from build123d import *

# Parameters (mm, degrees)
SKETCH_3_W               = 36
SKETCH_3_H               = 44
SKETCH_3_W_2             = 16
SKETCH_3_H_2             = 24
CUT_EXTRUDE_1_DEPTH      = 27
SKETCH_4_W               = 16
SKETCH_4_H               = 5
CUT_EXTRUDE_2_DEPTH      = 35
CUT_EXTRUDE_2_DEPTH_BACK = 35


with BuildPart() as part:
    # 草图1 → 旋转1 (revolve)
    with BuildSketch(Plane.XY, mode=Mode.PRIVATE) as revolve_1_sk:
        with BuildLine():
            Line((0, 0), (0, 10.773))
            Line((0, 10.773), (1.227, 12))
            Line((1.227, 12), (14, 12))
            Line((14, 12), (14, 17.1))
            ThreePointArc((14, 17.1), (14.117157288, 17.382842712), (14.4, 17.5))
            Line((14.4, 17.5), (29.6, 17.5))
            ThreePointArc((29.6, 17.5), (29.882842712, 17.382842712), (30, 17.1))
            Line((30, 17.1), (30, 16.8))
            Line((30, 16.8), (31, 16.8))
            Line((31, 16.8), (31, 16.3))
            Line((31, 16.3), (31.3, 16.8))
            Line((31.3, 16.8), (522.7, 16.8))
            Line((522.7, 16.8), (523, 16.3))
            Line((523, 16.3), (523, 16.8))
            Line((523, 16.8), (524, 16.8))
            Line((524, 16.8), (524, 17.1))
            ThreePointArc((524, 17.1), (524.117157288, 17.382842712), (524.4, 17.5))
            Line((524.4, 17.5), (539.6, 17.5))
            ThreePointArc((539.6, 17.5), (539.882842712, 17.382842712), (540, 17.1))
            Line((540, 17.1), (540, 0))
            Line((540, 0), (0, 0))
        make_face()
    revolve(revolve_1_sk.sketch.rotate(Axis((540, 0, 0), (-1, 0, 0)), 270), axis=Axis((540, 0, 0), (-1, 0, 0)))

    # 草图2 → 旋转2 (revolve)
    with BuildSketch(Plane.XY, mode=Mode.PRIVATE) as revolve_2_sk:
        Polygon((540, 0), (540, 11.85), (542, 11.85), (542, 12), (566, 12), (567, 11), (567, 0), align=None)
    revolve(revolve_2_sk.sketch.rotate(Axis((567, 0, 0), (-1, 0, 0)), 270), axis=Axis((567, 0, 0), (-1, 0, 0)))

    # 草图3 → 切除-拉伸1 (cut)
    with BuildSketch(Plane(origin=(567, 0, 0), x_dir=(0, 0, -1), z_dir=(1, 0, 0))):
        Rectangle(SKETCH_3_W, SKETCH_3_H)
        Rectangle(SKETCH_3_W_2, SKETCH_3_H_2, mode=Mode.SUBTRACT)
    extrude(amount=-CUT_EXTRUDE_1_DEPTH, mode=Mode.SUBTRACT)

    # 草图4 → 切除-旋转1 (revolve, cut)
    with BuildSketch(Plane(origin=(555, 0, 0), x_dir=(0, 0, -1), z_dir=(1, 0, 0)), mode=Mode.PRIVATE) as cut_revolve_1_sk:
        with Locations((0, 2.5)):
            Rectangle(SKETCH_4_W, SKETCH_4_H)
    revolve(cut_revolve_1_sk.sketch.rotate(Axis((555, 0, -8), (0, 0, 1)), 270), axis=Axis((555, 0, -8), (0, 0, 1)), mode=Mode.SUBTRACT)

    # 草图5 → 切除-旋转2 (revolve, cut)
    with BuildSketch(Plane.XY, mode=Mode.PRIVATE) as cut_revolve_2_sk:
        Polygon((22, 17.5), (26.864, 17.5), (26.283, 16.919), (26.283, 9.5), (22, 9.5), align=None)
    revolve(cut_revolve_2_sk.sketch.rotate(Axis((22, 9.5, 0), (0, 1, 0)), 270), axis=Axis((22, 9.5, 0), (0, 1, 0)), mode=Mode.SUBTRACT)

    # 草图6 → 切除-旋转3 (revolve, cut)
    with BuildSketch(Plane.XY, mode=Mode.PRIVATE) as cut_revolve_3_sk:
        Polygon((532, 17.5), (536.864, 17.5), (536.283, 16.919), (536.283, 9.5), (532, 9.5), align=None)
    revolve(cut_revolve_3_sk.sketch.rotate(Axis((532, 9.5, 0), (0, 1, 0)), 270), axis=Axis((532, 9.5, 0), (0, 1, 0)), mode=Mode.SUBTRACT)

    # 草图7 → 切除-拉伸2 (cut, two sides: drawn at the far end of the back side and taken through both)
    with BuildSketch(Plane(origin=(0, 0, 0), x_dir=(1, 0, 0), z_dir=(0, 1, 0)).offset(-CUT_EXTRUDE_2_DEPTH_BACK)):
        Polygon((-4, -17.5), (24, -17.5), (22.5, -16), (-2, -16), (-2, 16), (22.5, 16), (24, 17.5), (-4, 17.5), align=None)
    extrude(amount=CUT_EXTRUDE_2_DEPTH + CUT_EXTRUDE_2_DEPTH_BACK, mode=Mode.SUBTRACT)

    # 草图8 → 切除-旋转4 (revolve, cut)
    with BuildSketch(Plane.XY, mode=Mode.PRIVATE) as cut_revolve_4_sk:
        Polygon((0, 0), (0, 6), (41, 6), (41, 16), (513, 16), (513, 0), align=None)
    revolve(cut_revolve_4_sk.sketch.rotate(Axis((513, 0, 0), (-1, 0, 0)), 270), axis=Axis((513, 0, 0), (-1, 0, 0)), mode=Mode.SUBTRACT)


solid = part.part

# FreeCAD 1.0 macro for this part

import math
import FreeCAD as App
import Part
import Sketcher
from FreeCAD import Vector
Q = App.Units.Quantity

doc = App.newDocument("Part")
body = doc.addObject("PartDesign::Body", "Body")

# Sketch on XY plane
sketch1 = body.newObject("Sketcher::SketchObject", "Sketch")
sketch1.AttachmentSupport = (doc.getObject("XY_Plane"), [""])
sketch1.MapMode = "FlatFace"
sketch1.addGeometry(Part.LineSegment(Vector(0, 10.77, 0), Vector(0, 0, 0)), False)
sketch1.addGeometry(Part.LineSegment(Vector(0, 0, 0), Vector(540, 0, 0)), False)
sketch1.addGeometry(Part.LineSegment(Vector(540, 0, 0), Vector(540, 17.1, 0)), False)
sketch1.addGeometry(Part.ArcOfCircle(Part.Circle(Vector(539.6, 17.1, 0), Vector(0, 0, 1), 0.4), math.radians(0), math.radians(90)), False)
sketch1.addGeometry(Part.LineSegment(Vector(539.6, 17.5, 0), Vector(524.4, 17.5, 0)), False)
sketch1.addGeometry(Part.ArcOfCircle(Part.Circle(Vector(524.4, 17.1, 0), Vector(0, 0, 1), 0.4), math.radians(90), math.radians(180)), False)
sketch1.addGeometry(Part.LineSegment(Vector(524, 17.1, 0), Vector(524, 16.8, 0)), False)
sketch1.addGeometry(Part.LineSegment(Vector(524, 16.8, 0), Vector(523, 16.8, 0)), False)
sketch1.addGeometry(Part.LineSegment(Vector(523, 16.8, 0), Vector(523, 16.3, 0)), False)
sketch1.addGeometry(Part.LineSegment(Vector(523, 16.3, 0), Vector(522.7, 16.8, 0)), False)
sketch1.addGeometry(Part.LineSegment(Vector(522.7, 16.8, 0), Vector(31.3, 16.8, 0)), False)
sketch1.addGeometry(Part.LineSegment(Vector(31.3, 16.8, 0), Vector(31, 16.3, 0)), False)
sketch1.addGeometry(Part.LineSegment(Vector(31, 16.3, 0), Vector(31, 16.8, 0)), False)
sketch1.addGeometry(Part.LineSegment(Vector(31, 16.8, 0), Vector(30, 16.8, 0)), False)
sketch1.addGeometry(Part.LineSegment(Vector(30, 16.8, 0), Vector(30, 17.1, 0)), False)
sketch1.addGeometry(Part.ArcOfCircle(Part.Circle(Vector(29.6, 17.1, 0), Vector(0, 0, 1), 0.4), math.radians(0), math.radians(90)), False)
sketch1.addGeometry(Part.LineSegment(Vector(29.6, 17.5, 0), Vector(14.4, 17.5, 0)), False)
sketch1.addGeometry(Part.ArcOfCircle(Part.Circle(Vector(14.4, 17.1, 0), Vector(0, 0, 1), 0.4), math.radians(90), math.radians(180)), False)
sketch1.addGeometry(Part.LineSegment(Vector(14, 17.1, 0), Vector(14, 12, 0)), False)
sketch1.addGeometry(Part.LineSegment(Vector(14, 12, 0), Vector(1.23, 12, 0)), False)
sketch1.addGeometry(Part.LineSegment(Vector(1.23, 12, 0), Vector(0, 10.77, 0)), False)
sketch1.addConstraint(Sketcher.Constraint("Coincident", 0, 2, 1, 1))
sketch1.addConstraint(Sketcher.Constraint("Coincident", 1, 2, 2, 1))
sketch1.addConstraint(Sketcher.Constraint("Tangent", 2, 2, 3, 1))
sketch1.addConstraint(Sketcher.Constraint("Tangent", 3, 2, 4, 1))
sketch1.addConstraint(Sketcher.Constraint("Tangent", 4, 2, 5, 1))
sketch1.addConstraint(Sketcher.Constraint("Tangent", 5, 2, 6, 1))
sketch1.addConstraint(Sketcher.Constraint("Coincident", 6, 2, 7, 1))
sketch1.addConstraint(Sketcher.Constraint("Coincident", 7, 2, 8, 1))
sketch1.addConstraint(Sketcher.Constraint("Coincident", 8, 2, 9, 1))
sketch1.addConstraint(Sketcher.Constraint("Coincident", 9, 2, 10, 1))
sketch1.addConstraint(Sketcher.Constraint("Coincident", 10, 2, 11, 1))
sketch1.addConstraint(Sketcher.Constraint("Coincident", 11, 2, 12, 1))
sketch1.addConstraint(Sketcher.Constraint("Coincident", 12, 2, 13, 1))
sketch1.addConstraint(Sketcher.Constraint("Coincident", 13, 2, 14, 1))
sketch1.addConstraint(Sketcher.Constraint("Tangent", 14, 2, 15, 1))
sketch1.addConstraint(Sketcher.Constraint("Tangent", 15, 2, 16, 1))
sketch1.addConstraint(Sketcher.Constraint("Tangent", 16, 2, 17, 1))
sketch1.addConstraint(Sketcher.Constraint("Tangent", 17, 2, 18, 1))
sketch1.addConstraint(Sketcher.Constraint("Coincident", 18, 2, 19, 1))
sketch1.addConstraint(Sketcher.Constraint("Coincident", 19, 2, 20, 1))
sketch1.addConstraint(Sketcher.Constraint("Coincident", 20, 2, 0, 1))
sketch1.addConstraint(Sketcher.Constraint("Vertical", 0))
sketch1.addConstraint(Sketcher.Constraint("Horizontal", 1))
sketch1.addConstraint(Sketcher.Constraint("Vertical", 2))
sketch1.addConstraint(Sketcher.Constraint("Horizontal", 4))
sketch1.addConstraint(Sketcher.Constraint("Vertical", 6))
sketch1.addConstraint(Sketcher.Constraint("Horizontal", 7))
sketch1.addConstraint(Sketcher.Constraint("Vertical", 8))
sketch1.addConstraint(Sketcher.Constraint("Horizontal", 10))
sketch1.addConstraint(Sketcher.Constraint("Vertical", 12))
sketch1.addConstraint(Sketcher.Constraint("Horizontal", 13))
sketch1.addConstraint(Sketcher.Constraint("Vertical", 14))
sketch1.addConstraint(Sketcher.Constraint("Horizontal", 16))
sketch1.addConstraint(Sketcher.Constraint("Vertical", 18))
sketch1.addConstraint(Sketcher.Constraint("Horizontal", 19))
sketch1.addConstraint(Sketcher.Constraint("Coincident", 0, 2, -1, 1))
sketch1.addConstraint(Sketcher.Constraint("Equal", 3, 5))
sketch1.addConstraint(Sketcher.Constraint("Equal", 5, 15))
sketch1.addConstraint(Sketcher.Constraint("Equal", 15, 17))
sketch1.addConstraint(Sketcher.Constraint("Horizontal", 5, 3, 15, 3))
sketch1.addConstraint(Sketcher.Constraint("Horizontal", 7, 2, 9, 2))
sketch1.addConstraint(Sketcher.Constraint("Horizontal", 8, 2, 11, 2))
sketch1.addConstraint(Sketcher.Constraint("Horizontal", 10, 2, 12, 2))
sketch1.addConstraint(Sketcher.Constraint("Equal", 7, 13))
sketch1.addConstraint(Sketcher.Constraint("Equal", 4, 16))
sketch1.addConstraint(Sketcher.Constraint("Equal", 9, 11))
sketch1.addConstraint(Sketcher.Constraint("Radius", 3, Q("0.4 mm")))
sketch1.addConstraint(Sketcher.Constraint("DistanceX", 1, 1, 1, 2, Q("540 mm")))
sketch1.addConstraint(Sketcher.Constraint("DistanceX", 7, 2, 7, 1, Q("1 mm")))
sketch1.addConstraint(Sketcher.Constraint("Angle", 20, Q("-135 deg")))
sketch1.addConstraint(Sketcher.Constraint("DistanceX", 4, 2, 4, 1, Q("15.2 mm")))
sketch1.addConstraint(Sketcher.Constraint("DistanceX", 10, 2, 10, 1, Q("491.4 mm")))
sketch1.addConstraint(Sketcher.Constraint("DistanceY", 2, 1, 2, 2, Q("17.1 mm")))
sketch1.addConstraint(Sketcher.Constraint("DistanceY", 6, 2, 6, 1, Q("0.3 mm")))
sketch1.addConstraint(Sketcher.Constraint("DistanceY", 8, 2, 8, 1, Q("0.5 mm")))
sketch1.addConstraint(Sketcher.Constraint("DistanceY", 18, 2, 18, 1, Q("5.1 mm")))
sketch1.addConstraint(Sketcher.Constraint("DistanceX", -1, 1, 11, 2, Q("31 mm")))
sketch1.addConstraint(Sketcher.Constraint("DistanceX", 19, 2, 19, 1, Q("12.773 mm")))
revolution = body.newObject("PartDesign::Revolution", "Revolution")
revolution.Profile = sketch1
revolution.ReferenceAxis = (sketch1, ["H_Axis"])
revolution.Angle = 360

# Sketch on XY plane
sketch2 = body.newObject("Sketcher::SketchObject", "Sketch001")
sketch2.AttachmentSupport = (doc.getObject("XY_Plane"), [""])
sketch2.MapMode = "FlatFace"
sketch2.addGeometry(Part.LineSegment(Vector(540, 11.85, 0), Vector(540, 0, 0)), False)
sketch2.addGeometry(Part.LineSegment(Vector(540, 0, 0), Vector(567, 0, 0)), False)
sketch2.addGeometry(Part.LineSegment(Vector(567, 0, 0), Vector(567, 11, 0)), False)
sketch2.addGeometry(Part.LineSegment(Vector(567, 11, 0), Vector(566, 12, 0)), False)
sketch2.addGeometry(Part.LineSegment(Vector(566, 12, 0), Vector(542, 12, 0)), False)
sketch2.addGeometry(Part.LineSegment(Vector(542, 12, 0), Vector(542, 11.85, 0)), False)
sketch2.addGeometry(Part.LineSegment(Vector(542, 11.85, 0), Vector(540, 11.85, 0)), False)
sketch2.addConstraint(Sketcher.Constraint("Coincident", 0, 2, 1, 1))
sketch2.addConstraint(Sketcher.Constraint("Coincident", 1, 2, 2, 1))
sketch2.addConstraint(Sketcher.Constraint("Coincident", 2, 2, 3, 1))
sketch2.addConstraint(Sketcher.Constraint("Coincident", 3, 2, 4, 1))
sketch2.addConstraint(Sketcher.Constraint("Coincident", 4, 2, 5, 1))
sketch2.addConstraint(Sketcher.Constraint("Coincident", 5, 2, 6, 1))
sketch2.addConstraint(Sketcher.Constraint("Coincident", 6, 2, 0, 1))
sketch2.addConstraint(Sketcher.Constraint("Vertical", 0))
sketch2.addConstraint(Sketcher.Constraint("Horizontal", 1))
sketch2.addConstraint(Sketcher.Constraint("Vertical", 2))
sketch2.addConstraint(Sketcher.Constraint("Horizontal", 4))
sketch2.addConstraint(Sketcher.Constraint("Vertical", 5))
sketch2.addConstraint(Sketcher.Constraint("Horizontal", 6))
sketch2.addConstraint(Sketcher.Constraint("PointOnObject", 0, 2, -1))
sketch2.addConstraint(Sketcher.Constraint("DistanceX", 1, 1, 1, 2, Q("27 mm")))
sketch2.addConstraint(Sketcher.Constraint("DistanceX", 4, 2, 4, 1, Q("24 mm")))
sketch2.addConstraint(Sketcher.Constraint("DistanceX", 6, 2, 6, 1, Q("2 mm")))
sketch2.addConstraint(Sketcher.Constraint("DistanceY", 2, 1, 2, 2, Q("11 mm")))
sketch2.addConstraint(Sketcher.Constraint("Angle", 3, Q("135 deg")))
sketch2.addConstraint(Sketcher.Constraint("DistanceX", -1, 1, 0, 2, Q("540 mm")))
sketch2.addConstraint(Sketcher.Constraint("DistanceY", 0, 2, 0, 1, Q("11.85 mm")))
revolution2 = body.newObject("PartDesign::Revolution", "Revolution001")
revolution2.Profile = sketch2
revolution2.ReferenceAxis = (sketch2, ["H_Axis"])
revolution2.Angle = 360

# Sketch on YZ plane
sketch3 = body.newObject("Sketcher::SketchObject", "Sketch002")
sketch3.AttachmentSupport = (doc.getObject("YZ_Plane"), [""])
sketch3.MapMode = "FlatFace"
sketch3.AttachmentOffset = App.Placement(Vector(0, 0, 567), App.Rotation())
sketch3.addGeometry(Part.LineSegment(Vector(22, 18, 0), Vector(-22, 18, 0)), False)
sketch3.addGeometry(Part.LineSegment(Vector(-22, 18, 0), Vector(-22, -18, 0)), False)
sketch3.addGeometry(Part.LineSegment(Vector(-22, -18, 0), Vector(22, -18, 0)), False)
sketch3.addGeometry(Part.LineSegment(Vector(22, -18, 0), Vector(22, 18, 0)), False)
sketch3.addGeometry(Part.LineSegment(Vector(-12, -8, 0), Vector(-12, 8, 0)), False)
sketch3.addGeometry(Part.LineSegment(Vector(-12, 8, 0), Vector(12, 8, 0)), False)
sketch3.addGeometry(Part.LineSegment(Vector(12, 8, 0), Vector(12, -8, 0)), False)
sketch3.addGeometry(Part.LineSegment(Vector(12, -8, 0), Vector(-12, -8, 0)), False)
sketch3.addConstraint(Sketcher.Constraint("Coincident", 0, 2, 1, 1))
sketch3.addConstraint(Sketcher.Constraint("Coincident", 1, 2, 2, 1))
sketch3.addConstraint(Sketcher.Constraint("Coincident", 2, 2, 3, 1))
sketch3.addConstraint(Sketcher.Constraint("Coincident", 3, 2, 0, 1))
sketch3.addConstraint(Sketcher.Constraint("Coincident", 4, 2, 5, 1))
sketch3.addConstraint(Sketcher.Constraint("Coincident", 5, 2, 6, 1))
sketch3.addConstraint(Sketcher.Constraint("Coincident", 6, 2, 7, 1))
sketch3.addConstraint(Sketcher.Constraint("Coincident", 7, 2, 4, 1))
sketch3.addConstraint(Sketcher.Constraint("Horizontal", 0))
sketch3.addConstraint(Sketcher.Constraint("Vertical", 1))
sketch3.addConstraint(Sketcher.Constraint("Horizontal", 2))
sketch3.addConstraint(Sketcher.Constraint("Vertical", 3))
sketch3.addConstraint(Sketcher.Constraint("Vertical", 4))
sketch3.addConstraint(Sketcher.Constraint("Horizontal", 5))
sketch3.addConstraint(Sketcher.Constraint("Vertical", 6))
sketch3.addConstraint(Sketcher.Constraint("Horizontal", 7))
sketch3.addConstraint(Sketcher.Constraint("Symmetric", 0, 2, 2, 2, -1, 1))
sketch3.addConstraint(Sketcher.Constraint("Symmetric", 4, 2, 6, 2, -1, 1))
sketch3.addConstraint(Sketcher.Constraint("DistanceX", 0, 2, 0, 1, Q("44 mm")))
sketch3.addConstraint(Sketcher.Constraint("DistanceX", 5, 1, 5, 2, Q("24 mm")))
sketch3.addConstraint(Sketcher.Constraint("DistanceY", 1, 2, 1, 1, Q("36 mm")))
sketch3.addConstraint(Sketcher.Constraint("DistanceY", 4, 1, 4, 2, Q("16 mm")))
pocket1 = body.newObject("PartDesign::Pocket", "Pocket")
pocket1.Profile = sketch3
pocket1.Length = 27

# Sketch on YZ plane
sketch4 = body.newObject("Sketcher::SketchObject", "Sketch003")
sketch4.AttachmentSupport = (doc.getObject("YZ_Plane"), [""])
sketch4.MapMode = "FlatFace"
sketch4.AttachmentOffset = App.Placement(Vector(0, 0, 555), App.Rotation())
sketch4.addGeometry(Part.LineSegment(Vector(5, 8, 0), Vector(0, 8, 0)), False)
sketch4.addGeometry(Part.LineSegment(Vector(0, 8, 0), Vector(0, -8, 0)), False)
sketch4.addGeometry(Part.LineSegment(Vector(0, -8, 0), Vector(5, -8, 0)), False)
sketch4.addGeometry(Part.LineSegment(Vector(5, -8, 0), Vector(5, 8, 0)), False)
sketch4.addConstraint(Sketcher.Constraint("Coincident", 0, 2, 1, 1))
sketch4.addConstraint(Sketcher.Constraint("Coincident", 1, 2, 2, 1))
sketch4.addConstraint(Sketcher.Constraint("Coincident", 2, 2, 3, 1))
sketch4.addConstraint(Sketcher.Constraint("Coincident", 3, 2, 0, 1))
sketch4.addConstraint(Sketcher.Constraint("Horizontal", 0))
sketch4.addConstraint(Sketcher.Constraint("Vertical", 1))
sketch4.addConstraint(Sketcher.Constraint("Horizontal", 2))
sketch4.addConstraint(Sketcher.Constraint("Vertical", 3))
sketch4.addConstraint(Sketcher.Constraint("Symmetric", 0, 2, 1, 2, -1, 1))
sketch4.addConstraint(Sketcher.Constraint("DistanceX", 0, 2, 0, 1, Q("5 mm")))
sketch4.addConstraint(Sketcher.Constraint("DistanceY", 1, 2, 1, 1, Q("16 mm")))
groove = body.newObject("PartDesign::Groove", "Groove")
groove.Profile = sketch4
groove.ReferenceAxis = (sketch4, ["V_Axis"])
groove.Angle = 360

# Sketch on XY plane
sketch5 = body.newObject("Sketcher::SketchObject", "Sketch004")
sketch5.AttachmentSupport = (doc.getObject("XY_Plane"), [""])
sketch5.MapMode = "FlatFace"
sketch5.addGeometry(Part.LineSegment(Vector(26.9, 17.5, 0), Vector(22, 17.5, 0)), False)
sketch5.addGeometry(Part.LineSegment(Vector(22, 17.5, 0), Vector(22, 9.5, 0)), False)
sketch5.addGeometry(Part.LineSegment(Vector(22, 9.5, 0), Vector(26.3, 9.5, 0)), False)
sketch5.addGeometry(Part.LineSegment(Vector(26.3, 9.5, 0), Vector(26.3, 16.9, 0)), False)
sketch5.addGeometry(Part.LineSegment(Vector(26.3, 16.9, 0), Vector(26.9, 17.5, 0)), False)
sketch5.addGeometry(Part.LineSegment(Vector(22, 9.5, 0), Vector(22, 17.5, 0)), True)  # axis
sketch5.addConstraint(Sketcher.Constraint("Coincident", 0, 2, 1, 1))
sketch5.addConstraint(Sketcher.Constraint("Coincident", 1, 2, 2, 1))
sketch5.addConstraint(Sketcher.Constraint("Coincident", 2, 2, 3, 1))
sketch5.addConstraint(Sketcher.Constraint("Coincident", 3, 2, 4, 1))
sketch5.addConstraint(Sketcher.Constraint("Coincident", 4, 2, 0, 1))
sketch5.addConstraint(Sketcher.Constraint("Horizontal", 0))
sketch5.addConstraint(Sketcher.Constraint("Vertical", 1))
sketch5.addConstraint(Sketcher.Constraint("Horizontal", 2))
sketch5.addConstraint(Sketcher.Constraint("Vertical", 3))
sketch5.addConstraint(Sketcher.Constraint("Vertical", 5))
sketch5.addConstraint(Sketcher.Constraint("Coincident", 5, 1, 1, 2))
sketch5.addConstraint(Sketcher.Constraint("Horizontal", 4, 2, 5, 2))
sketch5.addConstraint(Sketcher.Constraint("DistanceY", 1, 2, 1, 1, Q("8 mm")))
sketch5.addConstraint(Sketcher.Constraint("Angle", 4, Q("45 deg")))
sketch5.addConstraint(Sketcher.Constraint("DistanceX", -1, 1, 0, 2, Q("22 mm")))
sketch5.addConstraint(Sketcher.Constraint("DistanceY", -1, 1, 0, 2, Q("17.5 mm")))
sketch5.addConstraint(Sketcher.Constraint("DistanceX", 0, 2, 0, 1, Q("4.864 mm")))
sketch5.addConstraint(Sketcher.Constraint("DistanceX", 2, 1, 2, 2, Q("4.283 mm")))
groove2 = body.newObject("PartDesign::Groove", "Groove001")
groove2.Profile = sketch5
groove2.ReferenceAxis = (sketch5, ["Axis0"])
groove2.Angle = 360

# Sketch on XY plane
sketch6 = body.newObject("Sketcher::SketchObject", "Sketch005")
sketch6.AttachmentSupport = (doc.getObject("XY_Plane"), [""])
sketch6.MapMode = "FlatFace"
sketch6.addGeometry(Part.LineSegment(Vector(536.9, 17.5, 0), Vector(532, 17.5, 0)), False)
sketch6.addGeometry(Part.LineSegment(Vector(532, 17.5, 0), Vector(532, 9.5, 0)), False)
sketch6.addGeometry(Part.LineSegment(Vector(532, 9.5, 0), Vector(536.3, 9.5, 0)), False)
sketch6.addGeometry(Part.LineSegment(Vector(536.3, 9.5, 0), Vector(536.3, 16.9, 0)), False)
sketch6.addGeometry(Part.LineSegment(Vector(536.3, 16.9, 0), Vector(536.9, 17.5, 0)), False)
sketch6.addGeometry(Part.LineSegment(Vector(532, 9.5, 0), Vector(532, 17.5, 0)), True)  # axis
sketch6.addConstraint(Sketcher.Constraint("Coincident", 0, 2, 1, 1))
sketch6.addConstraint(Sketcher.Constraint("Coincident", 1, 2, 2, 1))
sketch6.addConstraint(Sketcher.Constraint("Coincident", 2, 2, 3, 1))
sketch6.addConstraint(Sketcher.Constraint("Coincident", 3, 2, 4, 1))
sketch6.addConstraint(Sketcher.Constraint("Coincident", 4, 2, 0, 1))
sketch6.addConstraint(Sketcher.Constraint("Horizontal", 0))
sketch6.addConstraint(Sketcher.Constraint("Vertical", 1))
sketch6.addConstraint(Sketcher.Constraint("Horizontal", 2))
sketch6.addConstraint(Sketcher.Constraint("Vertical", 3))
sketch6.addConstraint(Sketcher.Constraint("Vertical", 5))
sketch6.addConstraint(Sketcher.Constraint("Coincident", 5, 1, 1, 2))
sketch6.addConstraint(Sketcher.Constraint("Horizontal", 4, 2, 5, 2))
sketch6.addConstraint(Sketcher.Constraint("DistanceY", 1, 2, 1, 1, Q("8 mm")))
sketch6.addConstraint(Sketcher.Constraint("Angle", 4, Q("45 deg")))
sketch6.addConstraint(Sketcher.Constraint("DistanceX", -1, 1, 0, 2, Q("532 mm")))
sketch6.addConstraint(Sketcher.Constraint("DistanceY", -1, 1, 0, 2, Q("17.5 mm")))
sketch6.addConstraint(Sketcher.Constraint("DistanceX", 0, 2, 0, 1, Q("4.864 mm")))
sketch6.addConstraint(Sketcher.Constraint("DistanceX", 2, 1, 2, 2, Q("4.283 mm")))
groove3 = body.newObject("PartDesign::Groove", "Groove002")
groove3.Profile = sketch6
groove3.ReferenceAxis = (sketch6, ["Axis0"])
groove3.Angle = 360

# Sketch on XZ plane
sketch7 = body.newObject("Sketcher::SketchObject", "Sketch006")
sketch7.AttachmentSupport = (doc.getObject("XZ_Plane"), [""])
sketch7.MapMode = "FlatFace"
sketch7.addGeometry(Part.LineSegment(Vector(-4, 17.5, 0), Vector(24, 17.5, 0)), False)
sketch7.addGeometry(Part.LineSegment(Vector(24, 17.5, 0), Vector(22.5, 16, 0)), False)
sketch7.addGeometry(Part.LineSegment(Vector(22.5, 16, 0), Vector(-2, 16, 0)), False)
sketch7.addGeometry(Part.LineSegment(Vector(-2, 16, 0), Vector(-2, -16, 0)), False)
sketch7.addGeometry(Part.LineSegment(Vector(-2, -16, 0), Vector(22.5, -16, 0)), False)
sketch7.addGeometry(Part.LineSegment(Vector(22.5, -16, 0), Vector(24, -17.5, 0)), False)
sketch7.addGeometry(Part.LineSegment(Vector(24, -17.5, 0), Vector(-4, -17.5, 0)), False)
sketch7.addGeometry(Part.LineSegment(Vector(-4, -17.5, 0), Vector(-4, 17.5, 0)), False)
sketch7.addConstraint(Sketcher.Constraint("Coincident", 0, 2, 1, 1))
sketch7.addConstraint(Sketcher.Constraint("Coincident", 1, 2, 2, 1))
sketch7.addConstraint(Sketcher.Constraint("Coincident", 2, 2, 3, 1))
sketch7.addConstraint(Sketcher.Constraint("Coincident", 3, 2, 4, 1))
sketch7.addConstraint(Sketcher.Constraint("Coincident", 4, 2, 5, 1))
sketch7.addConstraint(Sketcher.Constraint("Coincident", 5, 2, 6, 1))
sketch7.addConstraint(Sketcher.Constraint("Coincident", 6, 2, 7, 1))
sketch7.addConstraint(Sketcher.Constraint("Coincident", 7, 2, 0, 1))
sketch7.addConstraint(Sketcher.Constraint("Horizontal", 0))
sketch7.addConstraint(Sketcher.Constraint("Horizontal", 2))
sketch7.addConstraint(Sketcher.Constraint("Vertical", 3))
sketch7.addConstraint(Sketcher.Constraint("Horizontal", 4))
sketch7.addConstraint(Sketcher.Constraint("Horizontal", 6))
sketch7.addConstraint(Sketcher.Constraint("Vertical", 7))
sketch7.addConstraint(Sketcher.Constraint("Symmetric", 1, 2, 4, 2, -1))
sketch7.addConstraint(Sketcher.Constraint("Symmetric", 0, 2, 5, 2, -1))
sketch7.addConstraint(Sketcher.Constraint("Perpendicular", 1, 5))
sketch7.addConstraint(Sketcher.Constraint("DistanceX", 0, 1, 0, 2, Q("28 mm")))
sketch7.addConstraint(Sketcher.Constraint("DistanceY", 3, 2, 3, 1, Q("32 mm")))
sketch7.addConstraint(Sketcher.Constraint("DistanceY", 7, 1, 7, 2, Q("35 mm")))
sketch7.addConstraint(Sketcher.Constraint("DistanceX", 2, 2, 2, 1, Q("24.5 mm")))
sketch7.addConstraint(Sketcher.Constraint("DistanceX", -1, 1, 0, 2, Q("24 mm")))
pocket2 = body.newObject("PartDesign::Pocket", "Pocket001")
pocket2.Profile = sketch7
pocket2.Type = "ThroughAll"
pocket2.Midplane = True

# Sketch on XY plane
sketch8 = body.newObject("Sketcher::SketchObject", "Sketch007")
sketch8.AttachmentSupport = (doc.getObject("XY_Plane"), [""])
sketch8.MapMode = "FlatFace"
sketch8.addGeometry(Part.LineSegment(Vector(0, 6, 0), Vector(0, 0, 0)), False)
sketch8.addGeometry(Part.LineSegment(Vector(0, 0, 0), Vector(513, 0, 0)), False)
sketch8.addGeometry(Part.LineSegment(Vector(513, 0, 0), Vector(513, 16, 0)), False)
sketch8.addGeometry(Part.LineSegment(Vector(513, 16, 0), Vector(41, 16, 0)), False)
sketch8.addGeometry(Part.LineSegment(Vector(41, 16, 0), Vector(41, 6, 0)), False)
sketch8.addGeometry(Part.LineSegment(Vector(41, 6, 0), Vector(0, 6, 0)), False)
sketch8.addConstraint(Sketcher.Constraint("Coincident", 0, 2, 1, 1))
sketch8.addConstraint(Sketcher.Constraint("Coincident", 1, 2, 2, 1))
sketch8.addConstraint(Sketcher.Constraint("Coincident", 2, 2, 3, 1))
sketch8.addConstraint(Sketcher.Constraint("Coincident", 3, 2, 4, 1))
sketch8.addConstraint(Sketcher.Constraint("Coincident", 4, 2, 5, 1))
sketch8.addConstraint(Sketcher.Constraint("Coincident", 5, 2, 0, 1))
sketch8.addConstraint(Sketcher.Constraint("Vertical", 0))
sketch8.addConstraint(Sketcher.Constraint("Horizontal", 1))
sketch8.addConstraint(Sketcher.Constraint("Vertical", 2))
sketch8.addConstraint(Sketcher.Constraint("Horizontal", 3))
sketch8.addConstraint(Sketcher.Constraint("Vertical", 4))
sketch8.addConstraint(Sketcher.Constraint("Horizontal", 5))
sketch8.addConstraint(Sketcher.Constraint("Coincident", 0, 2, -1, 1))
sketch8.addConstraint(Sketcher.Constraint("DistanceX", 1, 1, 1, 2, Q("513 mm")))
sketch8.addConstraint(Sketcher.Constraint("DistanceX", 3, 2, 3, 1, Q("472 mm")))
sketch8.addConstraint(Sketcher.Constraint("DistanceY", 0, 2, 0, 1, Q("6 mm")))
sketch8.addConstraint(Sketcher.Constraint("DistanceY", 2, 1, 2, 2, Q("16 mm")))
groove4 = body.newObject("PartDesign::Groove", "Groove003")
groove4.Profile = sketch8
groove4.ReferenceAxis = (sketch8, ["H_Axis"])
groove4.Angle = 360

doc.recompute()
